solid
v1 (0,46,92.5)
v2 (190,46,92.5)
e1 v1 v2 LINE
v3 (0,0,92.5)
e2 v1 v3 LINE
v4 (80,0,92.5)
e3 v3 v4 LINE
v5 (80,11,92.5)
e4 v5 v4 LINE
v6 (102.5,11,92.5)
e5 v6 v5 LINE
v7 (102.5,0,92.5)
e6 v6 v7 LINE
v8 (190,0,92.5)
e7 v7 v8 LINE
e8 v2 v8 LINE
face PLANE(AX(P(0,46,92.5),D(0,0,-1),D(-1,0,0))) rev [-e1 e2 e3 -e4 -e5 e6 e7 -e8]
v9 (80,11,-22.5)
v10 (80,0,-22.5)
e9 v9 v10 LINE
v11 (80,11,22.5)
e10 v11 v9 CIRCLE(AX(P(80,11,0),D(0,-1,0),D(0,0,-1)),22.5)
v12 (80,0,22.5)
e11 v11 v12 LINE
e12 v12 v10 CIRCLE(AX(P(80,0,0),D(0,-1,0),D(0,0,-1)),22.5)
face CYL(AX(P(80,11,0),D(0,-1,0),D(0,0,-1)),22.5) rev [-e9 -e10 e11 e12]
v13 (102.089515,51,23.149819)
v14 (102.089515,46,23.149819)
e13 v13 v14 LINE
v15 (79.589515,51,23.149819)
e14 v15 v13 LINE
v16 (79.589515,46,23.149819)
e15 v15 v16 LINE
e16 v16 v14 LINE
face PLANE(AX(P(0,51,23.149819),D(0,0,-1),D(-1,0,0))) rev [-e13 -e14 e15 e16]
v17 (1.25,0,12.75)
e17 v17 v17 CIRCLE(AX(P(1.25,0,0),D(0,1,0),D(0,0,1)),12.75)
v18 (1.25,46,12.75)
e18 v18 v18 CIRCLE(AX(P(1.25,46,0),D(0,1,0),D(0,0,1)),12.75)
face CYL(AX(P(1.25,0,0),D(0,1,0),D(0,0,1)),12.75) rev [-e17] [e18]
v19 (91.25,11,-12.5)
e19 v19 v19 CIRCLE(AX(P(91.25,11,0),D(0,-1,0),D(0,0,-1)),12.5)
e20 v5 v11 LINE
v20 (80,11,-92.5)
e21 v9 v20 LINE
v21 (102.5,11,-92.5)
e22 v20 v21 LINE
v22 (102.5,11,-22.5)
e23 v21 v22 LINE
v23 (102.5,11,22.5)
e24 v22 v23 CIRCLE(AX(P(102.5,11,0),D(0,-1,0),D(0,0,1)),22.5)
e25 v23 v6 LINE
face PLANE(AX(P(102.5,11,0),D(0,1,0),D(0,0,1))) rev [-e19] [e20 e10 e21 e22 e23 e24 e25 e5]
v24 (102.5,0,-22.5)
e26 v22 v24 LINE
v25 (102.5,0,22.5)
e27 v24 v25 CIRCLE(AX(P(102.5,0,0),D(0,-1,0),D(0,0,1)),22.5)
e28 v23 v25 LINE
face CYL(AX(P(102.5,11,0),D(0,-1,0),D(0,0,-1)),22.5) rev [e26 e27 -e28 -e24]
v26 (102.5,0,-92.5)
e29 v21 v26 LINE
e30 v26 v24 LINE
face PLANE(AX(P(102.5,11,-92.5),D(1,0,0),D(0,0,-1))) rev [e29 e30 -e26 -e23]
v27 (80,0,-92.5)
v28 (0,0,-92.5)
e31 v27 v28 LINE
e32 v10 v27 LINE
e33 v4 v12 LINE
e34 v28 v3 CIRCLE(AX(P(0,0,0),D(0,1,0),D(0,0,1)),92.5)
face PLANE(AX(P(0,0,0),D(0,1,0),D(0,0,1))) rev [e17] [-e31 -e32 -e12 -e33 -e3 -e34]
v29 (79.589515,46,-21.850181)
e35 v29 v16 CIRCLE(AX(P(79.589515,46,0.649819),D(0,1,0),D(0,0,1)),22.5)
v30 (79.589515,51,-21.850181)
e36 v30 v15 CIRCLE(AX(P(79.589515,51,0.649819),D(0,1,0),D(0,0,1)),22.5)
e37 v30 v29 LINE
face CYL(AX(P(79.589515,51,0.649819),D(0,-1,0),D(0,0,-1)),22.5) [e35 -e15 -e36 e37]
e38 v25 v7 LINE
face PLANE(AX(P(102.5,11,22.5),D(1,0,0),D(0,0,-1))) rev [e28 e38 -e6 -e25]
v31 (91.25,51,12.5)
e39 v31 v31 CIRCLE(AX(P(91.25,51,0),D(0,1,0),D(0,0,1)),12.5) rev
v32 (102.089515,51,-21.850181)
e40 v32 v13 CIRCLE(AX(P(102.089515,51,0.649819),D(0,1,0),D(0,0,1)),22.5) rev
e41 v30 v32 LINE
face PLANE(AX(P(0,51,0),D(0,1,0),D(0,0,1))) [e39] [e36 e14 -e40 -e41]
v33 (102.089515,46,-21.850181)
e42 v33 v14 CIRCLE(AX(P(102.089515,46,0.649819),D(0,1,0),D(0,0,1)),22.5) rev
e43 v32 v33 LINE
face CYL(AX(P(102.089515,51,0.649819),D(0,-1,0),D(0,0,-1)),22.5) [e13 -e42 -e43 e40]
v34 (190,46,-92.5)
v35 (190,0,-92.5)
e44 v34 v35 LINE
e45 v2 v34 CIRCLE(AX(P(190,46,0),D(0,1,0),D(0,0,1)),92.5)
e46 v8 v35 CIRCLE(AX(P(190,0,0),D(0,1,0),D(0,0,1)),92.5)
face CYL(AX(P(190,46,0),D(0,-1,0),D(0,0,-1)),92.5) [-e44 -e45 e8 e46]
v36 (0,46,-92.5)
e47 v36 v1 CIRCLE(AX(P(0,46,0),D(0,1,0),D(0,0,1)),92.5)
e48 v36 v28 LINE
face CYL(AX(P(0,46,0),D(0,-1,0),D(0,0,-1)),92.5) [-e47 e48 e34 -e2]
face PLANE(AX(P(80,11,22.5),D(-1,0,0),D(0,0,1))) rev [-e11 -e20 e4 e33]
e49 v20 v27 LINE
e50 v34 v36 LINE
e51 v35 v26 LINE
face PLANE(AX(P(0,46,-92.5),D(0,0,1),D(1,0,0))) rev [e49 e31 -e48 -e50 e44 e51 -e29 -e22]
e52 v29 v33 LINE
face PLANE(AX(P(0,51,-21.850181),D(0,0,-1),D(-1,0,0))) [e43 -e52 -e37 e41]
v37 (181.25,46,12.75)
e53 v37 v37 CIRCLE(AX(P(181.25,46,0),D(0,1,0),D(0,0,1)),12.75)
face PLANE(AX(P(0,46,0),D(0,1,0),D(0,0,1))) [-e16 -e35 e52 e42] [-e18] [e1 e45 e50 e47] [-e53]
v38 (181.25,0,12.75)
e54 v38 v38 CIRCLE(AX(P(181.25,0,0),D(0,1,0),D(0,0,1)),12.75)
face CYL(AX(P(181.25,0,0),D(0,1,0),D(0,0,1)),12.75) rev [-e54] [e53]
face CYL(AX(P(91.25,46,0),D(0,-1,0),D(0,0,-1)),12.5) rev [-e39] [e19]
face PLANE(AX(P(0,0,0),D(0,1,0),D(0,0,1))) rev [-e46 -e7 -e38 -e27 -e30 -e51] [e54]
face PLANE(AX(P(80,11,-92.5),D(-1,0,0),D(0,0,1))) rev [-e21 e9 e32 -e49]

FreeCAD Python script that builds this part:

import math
import FreeCAD as App
import Part
import Sketcher
Q = App.Units.Quantity

doc = App.newDocument("Part")
body = doc.addObject("PartDesign::Body", "Body")

# Sketch on XZ plane
sketch1 = body.newObject("Sketcher::SketchObject", "Sketch")
sketch1.AttachmentSupport = (doc.getObject("XZ_Plane"), [""])
sketch1.MapMode = "FlatFace"
sketch1.addGeometry([
    Part.LineSegment(App.Vector(190, -92, 0), App.Vector(0, -92, 0)),
    Part.ArcOfCircle(Part.Circle(App.Vector(0, 0, 0), App.Vector(0, 0, 1), 92), math.radians(90), math.radians(270)),
    Part.LineSegment(App.Vector(0, 92, 0), App.Vector(190, 92, 0)),
    Part.ArcOfCircle(Part.Circle(App.Vector(190, 0, 0), App.Vector(0, 0, 1), 92), math.radians(-90), math.radians(90)),
], False)
sketch1.addConstraint([
    Sketcher.Constraint("Tangent", 0, 2, 1, 2),
    Sketcher.Constraint("Tangent", 1, 1, 2, 1),
    Sketcher.Constraint("Tangent", 2, 2, 3, 2),
    Sketcher.Constraint("Tangent", 3, 1, 0, 1),
    Sketcher.Constraint("Horizontal", 0),
    Sketcher.Constraint("Horizontal", 2),
    Sketcher.Constraint("Coincident", 1, 3, -1, 1),
    Sketcher.Constraint("Radius", 1, Q("92.5 mm")),
    Sketcher.Constraint("DistanceX", 0, 2, 0, 1, Q("190 mm")),
])
pad1 = body.newObject("PartDesign::Pad", "Pad")
pad1.Profile = sketch1
pad1.Length = 46
pad1.Reversed = True

# Sketch on XZ plane
sketch2 = body.newObject("Sketcher::SketchObject", "Sketch001")
sketch2.AttachmentSupport = (doc.getObject("XZ_Plane"), [""])
sketch2.MapMode = "FlatFace"
sketch2.addGeometry([
    Part.LineSegment(App.Vector(80, -22, 0), App.Vector(80, -92, 0)),  # 0
    Part.LineSegment(App.Vector(80, -92, 0), App.Vector(102, -92, 0)),  # 1
    Part.LineSegment(App.Vector(102, -92, 0), App.Vector(102, -22, 0)),  # 2
    Part.ArcOfCircle(Part.Circle(App.Vector(102, 0, 0), App.Vector(0, 0, 1), 22), math.radians(-90), math.radians(90)),  # 3
    Part.LineSegment(App.Vector(102, 22, 0), App.Vector(102, 92, 0)),  # 4
    Part.LineSegment(App.Vector(102, 92, 0), App.Vector(80, 92, 0)),  # 5
    Part.LineSegment(App.Vector(80, 92, 0), App.Vector(80, 22, 0)),  # 6
    Part.ArcOfCircle(Part.Circle(App.Vector(80, 0, 0), App.Vector(0, 0, 1), 22), math.radians(90), math.radians(270)),  # 7
], False)
sketch2.addConstraint([
    Sketcher.Constraint("Coincident", 0, 2, 1, 1),
    Sketcher.Constraint("Coincident", 1, 2, 2, 1),
    Sketcher.Constraint("Coincident", 2, 2, 3, 1),
    Sketcher.Constraint("Coincident", 3, 2, 4, 1),
    Sketcher.Constraint("Coincident", 4, 2, 5, 1),
    Sketcher.Constraint("Coincident", 5, 2, 6, 1),
    Sketcher.Constraint("Coincident", 6, 2, 7, 1),
    Sketcher.Constraint("Coincident", 7, 2, 0, 1),
    Sketcher.Constraint("Vertical", 0),
    Sketcher.Constraint("Horizontal", 1),
    Sketcher.Constraint("Vertical", 2),
    Sketcher.Constraint("Vertical", 4),
    Sketcher.Constraint("Horizontal", 5),
    Sketcher.Constraint("Vertical", 6),
    Sketcher.Constraint("Equal", 3, 7),
    Sketcher.Constraint("Symmetric", 2, 2, 3, 2, -1),
    Sketcher.Constraint("Symmetric", 0, 2, 5, 2, -1),
    Sketcher.Constraint("PointOnObject", 7, 3, -1),
    Sketcher.Constraint("Vertical", 7, 3, 0, 2),
    Sketcher.Constraint("Vertical", 3, 3, 1, 2),
    Sketcher.Constraint("Radius", 3, Q("22.5 mm")),
    Sketcher.Constraint("DistanceY", 0, 2, 0, 1, Q("70 mm")),
    Sketcher.Constraint("DistanceX", 1, 1, 1, 2, Q("22.5 mm")),
    Sketcher.Constraint("DistanceX", -1, 1, 7, 3, Q("80 mm")),
])
pocket1 = body.newObject("PartDesign::Pocket", "Pocket")
pocket1.Profile = sketch2
pocket1.Length = 11

# Sketch on XZ plane
sketch3 = body.newObject("Sketcher::SketchObject", "Sketch002")
sketch3.AttachmentSupport = (doc.getObject("XZ_Plane"), [""])
sketch3.MapMode = "FlatFace"
sketch3.AttachmentOffset = App.Placement(App.Vector(0, 0, -11), App.Rotation())
sketch3.addGeometry(Part.Circle(App.Vector(91, 0, 0), App.Vector(0, 0, 1), 12), False)
sketch3.addConstraint([
    Sketcher.Constraint("PointOnObject", 0, 3, -1),
    Sketcher.Constraint("Diameter", 0, Q("25 mm")),
    Sketcher.Constraint("DistanceX", -1, 1, 0, 3, Q("91.25 mm")),
])
pocket2 = body.newObject("PartDesign::Pocket", "Pocket001")
pocket2.Profile = sketch3
pocket2.Type = "ThroughAll"

# Sketch on XZ plane
sketch4 = body.newObject("Sketcher::SketchObject", "Sketch003")
sketch4.AttachmentSupport = (doc.getObject("XZ_Plane"), [""])
sketch4.MapMode = "FlatFace"
sketch4.AttachmentOffset = App.Placement(App.Vector(0, 0, -46), App.Rotation())
sketch4.addGeometry([
    Part.ArcOfCircle(Part.Circle(App.Vector(102, 1, 0), App.Vector(0, 0, 1), 22), math.radians(-90), math.radians(90)),  # 0
    Part.LineSegment(App.Vector(102, -22, 0), App.Vector(80, -22, 0)),  # 1
    Part.ArcOfCircle(Part.Circle(App.Vector(80, 1, 0), App.Vector(0, 0, 1), 22), math.radians(90), math.radians(270)),  # 2
    Part.LineSegment(App.Vector(80, 23, 0), App.Vector(102, 23, 0)),  # 3
    Part.Circle(App.Vector(91, 0, 0), App.Vector(0, 0, 1), 12),  # 4
], False)
sketch4.addConstraint([
    Sketcher.Constraint("Tangent", 0, 1, 1, 1),
    Sketcher.Constraint("Tangent", 1, 2, 2, 2),
    Sketcher.Constraint("Tangent", 2, 1, 3, 1),
    Sketcher.Constraint("Tangent", 3, 2, 0, 2),
    Sketcher.Constraint("Horizontal", 1),
    Sketcher.Constraint("Horizontal", 3),
    Sketcher.Constraint("PointOnObject", 4, 3, -1),
    Sketcher.Constraint("Diameter", 4, Q("25 mm")),
    Sketcher.Constraint("Radius", 0, Q("22.5 mm")),
    Sketcher.Constraint("DistanceX", 1, 2, 1, 1, Q("22.5 mm")),
    Sketcher.Constraint("DistanceX", -1, 1, 4, 3, Q("91.25 mm")),
    Sketcher.Constraint("DistanceY", -1, 1, 0, 3, Q("0.649819 mm")),
    Sketcher.Constraint("DistanceX", -1, 1, 0, 3, Q("102.089515 mm")),
])
pad2 = body.newObject("PartDesign::Pad", "Pad001")
pad2.Profile = sketch4
pad2.Length = 5
pad2.Reversed = True

# Sketch on XZ plane
sketch5 = body.newObject("Sketcher::SketchObject", "Sketch004")
sketch5.AttachmentSupport = (doc.getObject("XZ_Plane"), [""])
sketch5.MapMode = "FlatFace"
sketch5.AttachmentOffset = App.Placement(App.Vector(0, 0, -46), App.Rotation())
sketch5.addGeometry([
    Part.Circle(App.Vector(1, 0, 0), App.Vector(0, 0, 1), 13),
    Part.Circle(App.Vector(181, 0, 0), App.Vector(0, 0, 1), 13),
], False)
sketch5.addConstraint([
    Sketcher.Constraint("Equal", 0, 1),
    Sketcher.Constraint("PointOnObject", 0, 3, -1),
    Sketcher.Constraint("PointOnObject", 1, 3, -1),
    Sketcher.Constraint("Diameter", 0, Q("25.5 mm")),
    Sketcher.Constraint("DistanceX", 0, 3, 1, 3, Q("180 mm")),
    Sketcher.Constraint("DistanceX", -1, 1, 0, 3, Q("1.25 mm")),
])
pocket3 = body.newObject("PartDesign::Pocket", "Pocket002")
pocket3.Profile = sketch5
pocket3.Type = "ThroughAll"
pocket3.Midplane = True

doc.recompute()
